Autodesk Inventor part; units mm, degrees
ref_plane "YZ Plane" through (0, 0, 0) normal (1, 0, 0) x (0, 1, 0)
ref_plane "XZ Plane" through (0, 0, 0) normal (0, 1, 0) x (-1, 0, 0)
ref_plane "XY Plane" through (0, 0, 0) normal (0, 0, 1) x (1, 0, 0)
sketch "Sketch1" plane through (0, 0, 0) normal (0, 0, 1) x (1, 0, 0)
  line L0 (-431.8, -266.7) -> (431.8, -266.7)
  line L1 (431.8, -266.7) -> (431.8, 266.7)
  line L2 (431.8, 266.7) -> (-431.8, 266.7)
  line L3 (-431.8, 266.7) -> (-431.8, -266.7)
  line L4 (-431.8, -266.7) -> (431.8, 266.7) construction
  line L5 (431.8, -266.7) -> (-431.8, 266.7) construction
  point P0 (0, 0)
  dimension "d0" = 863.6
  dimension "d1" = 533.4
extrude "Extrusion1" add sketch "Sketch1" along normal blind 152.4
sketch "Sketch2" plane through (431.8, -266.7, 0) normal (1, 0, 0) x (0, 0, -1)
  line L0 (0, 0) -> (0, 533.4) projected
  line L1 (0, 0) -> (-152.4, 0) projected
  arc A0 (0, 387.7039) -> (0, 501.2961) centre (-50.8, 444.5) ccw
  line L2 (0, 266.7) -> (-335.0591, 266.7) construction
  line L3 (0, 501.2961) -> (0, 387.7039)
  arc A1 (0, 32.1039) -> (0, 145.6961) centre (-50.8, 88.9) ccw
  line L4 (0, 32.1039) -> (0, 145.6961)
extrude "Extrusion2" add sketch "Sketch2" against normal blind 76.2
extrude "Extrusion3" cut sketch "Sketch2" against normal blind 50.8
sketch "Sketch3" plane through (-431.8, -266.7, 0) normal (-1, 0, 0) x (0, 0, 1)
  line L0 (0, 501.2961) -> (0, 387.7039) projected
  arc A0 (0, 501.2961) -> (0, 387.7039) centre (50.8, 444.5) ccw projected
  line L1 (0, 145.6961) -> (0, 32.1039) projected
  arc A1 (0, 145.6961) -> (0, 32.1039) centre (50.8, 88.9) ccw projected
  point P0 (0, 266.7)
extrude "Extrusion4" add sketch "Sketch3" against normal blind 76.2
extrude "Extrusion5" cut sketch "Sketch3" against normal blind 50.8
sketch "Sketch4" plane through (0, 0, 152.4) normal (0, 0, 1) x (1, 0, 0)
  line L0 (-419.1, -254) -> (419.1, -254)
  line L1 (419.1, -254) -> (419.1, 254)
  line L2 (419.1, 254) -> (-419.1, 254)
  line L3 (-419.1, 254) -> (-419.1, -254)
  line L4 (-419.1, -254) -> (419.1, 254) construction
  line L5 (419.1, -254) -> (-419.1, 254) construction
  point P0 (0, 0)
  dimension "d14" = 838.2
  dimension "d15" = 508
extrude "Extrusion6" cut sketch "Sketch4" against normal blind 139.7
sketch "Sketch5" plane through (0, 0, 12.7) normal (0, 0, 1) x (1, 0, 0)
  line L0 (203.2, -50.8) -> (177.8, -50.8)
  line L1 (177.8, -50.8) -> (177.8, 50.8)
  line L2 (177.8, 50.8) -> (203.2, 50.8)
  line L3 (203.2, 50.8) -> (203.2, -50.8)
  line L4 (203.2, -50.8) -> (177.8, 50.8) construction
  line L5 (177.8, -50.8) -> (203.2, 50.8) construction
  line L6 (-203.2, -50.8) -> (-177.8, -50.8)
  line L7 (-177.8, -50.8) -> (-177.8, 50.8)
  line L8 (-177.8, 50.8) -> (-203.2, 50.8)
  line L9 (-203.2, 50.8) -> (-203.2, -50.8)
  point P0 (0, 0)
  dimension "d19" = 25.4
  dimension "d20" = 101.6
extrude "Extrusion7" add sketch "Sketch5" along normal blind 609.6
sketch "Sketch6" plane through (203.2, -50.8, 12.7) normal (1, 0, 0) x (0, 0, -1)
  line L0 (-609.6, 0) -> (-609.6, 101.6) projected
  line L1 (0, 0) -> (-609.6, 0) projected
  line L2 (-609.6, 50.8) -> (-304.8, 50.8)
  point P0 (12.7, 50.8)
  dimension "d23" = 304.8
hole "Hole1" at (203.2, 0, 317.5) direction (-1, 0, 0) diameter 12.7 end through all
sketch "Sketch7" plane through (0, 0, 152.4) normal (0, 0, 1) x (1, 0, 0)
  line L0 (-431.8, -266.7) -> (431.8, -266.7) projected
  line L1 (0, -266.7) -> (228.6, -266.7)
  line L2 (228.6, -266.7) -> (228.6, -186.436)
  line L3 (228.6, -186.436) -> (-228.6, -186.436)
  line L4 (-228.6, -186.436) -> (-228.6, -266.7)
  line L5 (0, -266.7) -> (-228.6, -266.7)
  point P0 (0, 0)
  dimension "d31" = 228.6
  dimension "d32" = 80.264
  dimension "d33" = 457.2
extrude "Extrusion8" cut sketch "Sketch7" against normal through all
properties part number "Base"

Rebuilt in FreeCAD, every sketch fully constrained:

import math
import FreeCAD as App
import Part
import Sketcher
Q = App.Units.Quantity

doc = App.newDocument("Part")
params = doc.addObject("Spreadsheet::Sheet", "Params")
for row, (alias, value) in enumerate([
    ("sketch1_width", "34 in"),
    ("sketch1_height", "21 in"),
    ("pad1_length", "6 in"),
    ("sketch2_radius", "3 in"),
    ("pad2_length", "3 in"),
    ("sketch3_radius", "3 in"),
    ("pocket1_length", "2 in"),
    ("sketch4_radius", "3 in"),
    ("pad3_length", "3 in"),
    ("sketch5_radius", "3 in"),
    ("pocket2_length", "2 in"),
    ("sketch6_width", "33 in"),
    ("sketch6_height", "20 in"),
    ("pocket3_length", "5.5 in"),
    ("sketch7_width", "1 in"),
    ("sketch7_height", "4 in"),
    ("pad4_length", "24 in"),
    ("sketch8_diameter", "0.5 in"),
    ("hole_diameter", "0.5 in"),
    ("sketch9_width", "18 in"),
    ("sketch9_height", "3.16 in"),
], start=1):
    params.set(f"A{row}", alias)
    params.set(f"B{row}", "=" + value)
    params.setAlias(f"B{row}", alias)

body = doc.addObject("PartDesign::Body", "Body")

# Sketch on XY plane
sketch1 = doc.addObject("Sketcher::SketchObject", "Sketch")
body.addObject(sketch1)
sketch1.AttachmentSupport = (doc.XY_Plane, [""])
sketch1.MapMode = "FlatFace"
sketch1.addGeometry([
    Part.LineSegment(App.Vector(-432, 267, 0), App.Vector(-432, -267, 0)),
    Part.LineSegment(App.Vector(-432, -267, 0), App.Vector(432, -267, 0)),
    Part.LineSegment(App.Vector(432, -267, 0), App.Vector(432, 267, 0)),
    Part.LineSegment(App.Vector(432, 267, 0), App.Vector(-432, 267, 0)),
], False)
sketch1.addConstraint([
    Sketcher.Constraint("Coincident", 0, 2, 1, 1),
    Sketcher.Constraint("Coincident", 1, 2, 2, 1),
    Sketcher.Constraint("Coincident", 2, 2, 3, 1),
    Sketcher.Constraint("Coincident", 3, 2, 0, 1),
    Sketcher.Constraint("Vertical", 0),
    Sketcher.Constraint("Horizontal", 1),
    Sketcher.Constraint("Vertical", 2),
    Sketcher.Constraint("Horizontal", 3),
    Sketcher.Constraint("Symmetric", 0, 2, 2, 2, -1, 1),
    Sketcher.Constraint("DistanceX", 1, 1, 1, 2, Q("34 in")),
    Sketcher.Constraint("DistanceY", 0, 2, 0, 1, Q("21 in")),
])
sketch1.setExpression("Constraints[9]", "Params.sketch1_width")
sketch1.setExpression("Constraints[10]", "Params.sketch1_height")
pad1 = doc.addObject("PartDesign::Pad", "Pad")
body.addObject(pad1)
pad1.Profile = sketch1
pad1.setExpression("Length", "Params.pad1_length")

# Sketch on YZ plane
sketch2 = doc.addObject("Sketcher::SketchObject", "Sketch001")
body.addObject(sketch2)
sketch2.AttachmentSupport = (doc.YZ_Plane, [""])
sketch2.MapMode = "FlatFace"
sketch2.AttachmentOffset = App.Placement(App.Vector(0, 0, 17 * 25.4), App.Rotation())
sketch2.addGeometry([
    Part.LineSegment(App.Vector(235, 0, 0), App.Vector(121, 0, 0)),
    Part.ArcOfCircle(Part.Circle(App.Vector(178, 51, 0), App.Vector(0, 0, 1), 76), math.radians(-138), math.radians(-42)),
    Part.LineSegment(App.Vector(-121, 0, 0), App.Vector(-235, 0, 0)),
    Part.ArcOfCircle(Part.Circle(App.Vector(-178, 51, 0), App.Vector(0, 0, 1), 76), math.radians(-138), math.radians(-42)),
], False)
sketch2.addConstraint([
    Sketcher.Constraint("Coincident", 0, 1, 1, 2),
    Sketcher.Constraint("Coincident", 1, 1, 0, 2),
    Sketcher.Constraint("Coincident", 2, 1, 3, 2),
    Sketcher.Constraint("Coincident", 3, 1, 2, 2),
    Sketcher.Constraint("Horizontal", 0),
    Sketcher.Constraint("Horizontal", 2),
    Sketcher.Constraint("Equal", 1, 3),
    Sketcher.Constraint("Symmetric", 1, 1, 2, 1, -1, 1),
    Sketcher.Constraint("Symmetric", 1, 3, 3, 3, -2),
    Sketcher.Constraint("Radius", 1, Q("3 in")),
    Sketcher.Constraint("DistanceX", -1, 1, 1, 3, Q("7 in")),
    Sketcher.Constraint("DistanceY", -1, 1, 1, 3, Q("2 in")),
])
sketch2.setExpression("Constraints[9]", "Params.sketch2_radius")
pad2 = doc.addObject("PartDesign::Pad", "Pad001")
body.addObject(pad2)
pad2.Profile = sketch2
pad2.setExpression("Length", "Params.pad2_length")
pad2.Reversed = True

# Sketch on YZ plane
sketch3 = doc.addObject("Sketcher::SketchObject", "Sketch002")
body.addObject(sketch3)
sketch3.AttachmentSupport = (doc.YZ_Plane, [""])
sketch3.MapMode = "FlatFace"
sketch3.AttachmentOffset = App.Placement(App.Vector(0, 0, 17 * 25.4), App.Rotation())
sketch3.addGeometry([
    Part.LineSegment(App.Vector(235, 0, 0), App.Vector(121, 0, 0)),
    Part.ArcOfCircle(Part.Circle(App.Vector(178, 51, 0), App.Vector(0, 0, 1), 76), math.radians(-138), math.radians(-42)),
    Part.LineSegment(App.Vector(-121, 0, 0), App.Vector(-235, 0, 0)),
    Part.ArcOfCircle(Part.Circle(App.Vector(-178, 51, 0), App.Vector(0, 0, 1), 76), math.radians(-138), math.radians(-42)),
], False)
sketch3.addConstraint([
    Sketcher.Constraint("Coincident", 0, 1, 1, 2),
    Sketcher.Constraint("Coincident", 1, 1, 0, 2),
    Sketcher.Constraint("Coincident", 2, 1, 3, 2),
    Sketcher.Constraint("Coincident", 3, 1, 2, 2),
    Sketcher.Constraint("Horizontal", 0),
    Sketcher.Constraint("Horizontal", 2),
    Sketcher.Constraint("Equal", 1, 3),
    Sketcher.Constraint("Symmetric", 1, 1, 2, 1, -1, 1),
    Sketcher.Constraint("Symmetric", 1, 3, 3, 3, -2),
    Sketcher.Constraint("Radius", 1, Q("3 in")),
    Sketcher.Constraint("DistanceX", -1, 1, 1, 3, Q("7 in")),
    Sketcher.Constraint("DistanceY", -1, 1, 1, 3, Q("2 in")),
])
sketch3.setExpression("Constraints[9]", "Params.sketch3_radius")
pocket1 = doc.addObject("PartDesign::Pocket", "Pocket")
body.addObject(pocket1)
pocket1.Profile = sketch3
pocket1.setExpression("Length", "Params.pocket1_length")

# Sketch on YZ plane
sketch4 = doc.addObject("Sketcher::SketchObject", "Sketch003")
body.addObject(sketch4)
sketch4.AttachmentSupport = (doc.YZ_Plane, [""])
sketch4.MapMode = "FlatFace"
sketch4.AttachmentOffset = App.Placement(App.Vector(0, 0, -17 * 25.4), App.Rotation())
sketch4.addGeometry([
    Part.LineSegment(App.Vector(121, 0, 0), App.Vector(235, 0, 0)),
    Part.ArcOfCircle(Part.Circle(App.Vector(178, 51, 0), App.Vector(0, 0, 1), 76), math.radians(-138), math.radians(-42)),
    Part.LineSegment(App.Vector(-235, 0, 0), App.Vector(-121, 0, 0)),
    Part.ArcOfCircle(Part.Circle(App.Vector(-178, 51, 0), App.Vector(0, 0, 1), 76), math.radians(-138), math.radians(-42)),
], False)
sketch4.addConstraint([
    Sketcher.Constraint("Coincident", 0, 1, 1, 1),
    Sketcher.Constraint("Coincident", 1, 2, 0, 2),
    Sketcher.Constraint("Coincident", 2, 1, 3, 1),
    Sketcher.Constraint("Coincident", 3, 2, 2, 2),
    Sketcher.Constraint("Horizontal", 0),
    Sketcher.Constraint("Horizontal", 2),
    Sketcher.Constraint("Equal", 1, 3),
    Sketcher.Constraint("Symmetric", 1, 2, 2, 1, -1, 1),
    Sketcher.Constraint("Symmetric", 1, 3, 3, 3, -2),
    Sketcher.Constraint("Radius", 1, Q("3 in")),
    Sketcher.Constraint("DistanceX", -1, 1, 1, 3, Q("7 in")),
    Sketcher.Constraint("DistanceY", -1, 1, 1, 3, Q("2 in")),
])
sketch4.setExpression("Constraints[9]", "Params.sketch4_radius")
pad3 = doc.addObject("PartDesign::Pad", "Pad002")
body.addObject(pad3)
pad3.Profile = sketch4
pad3.setExpression("Length", "Params.pad3_length")

# Sketch on YZ plane
sketch5 = doc.addObject("Sketcher::SketchObject", "Sketch004")
body.addObject(sketch5)
sketch5.AttachmentSupport = (doc.YZ_Plane, [""])
sketch5.MapMode = "FlatFace"
sketch5.AttachmentOffset = App.Placement(App.Vector(0, 0, -17 * 25.4), App.Rotation())
sketch5.addGeometry([
    Part.LineSegment(App.Vector(121, 0, 0), App.Vector(235, 0, 0)),
    Part.ArcOfCircle(Part.Circle(App.Vector(178, 51, 0), App.Vector(0, 0, 1), 76), math.radians(-138), math.radians(-42)),
    Part.LineSegment(App.Vector(-235, 0, 0), App.Vector(-121, 0, 0)),
    Part.ArcOfCircle(Part.Circle(App.Vector(-178, 51, 0), App.Vector(0, 0, 1), 76), math.radians(-138), math.radians(-42)),
], False)
sketch5.addConstraint([
    Sketcher.Constraint("Coincident", 0, 1, 1, 1),
    Sketcher.Constraint("Coincident", 1, 2, 0, 2),
    Sketcher.Constraint("Coincident", 2, 1, 3, 1),
    Sketcher.Constraint("Coincident", 3, 2, 2, 2),
    Sketcher.Constraint("Horizontal", 0),
    Sketcher.Constraint("Horizontal", 2),
    Sketcher.Constraint("Equal", 1, 3),
    Sketcher.Constraint("Symmetric", 1, 2, 2, 1, -1, 1),
    Sketcher.Constraint("Symmetric", 1, 3, 3, 3, -2),
    Sketcher.Constraint("Radius", 1, Q("3 in")),
    Sketcher.Constraint("DistanceX", -1, 1, 1, 3, Q("7 in")),
    Sketcher.Constraint("DistanceY", -1, 1, 1, 3, Q("2 in")),
])
sketch5.setExpression("Constraints[9]", "Params.sketch5_radius")
pocket2 = doc.addObject("PartDesign::Pocket", "Pocket001")
body.addObject(pocket2)
pocket2.Profile = sketch5
pocket2.setExpression("Length", "Params.pocket2_length")
pocket2.Reversed = True

# Sketch on XY plane
sketch6 = doc.addObject("Sketcher::SketchObject", "Sketch005")
body.addObject(sketch6)
sketch6.AttachmentSupport = (doc.XY_Plane, [""])
sketch6.MapMode = "FlatFace"
sketch6.AttachmentOffset = App.Placement(App.Vector(0, 0, 6 * 25.4), App.Rotation())
sketch6.addGeometry([
    Part.LineSegment(App.Vector(-419, 254, 0), App.Vector(-419, -254, 0)),
    Part.LineSegment(App.Vector(-419, -254, 0), App.Vector(419, -254, 0)),
    Part.LineSegment(App.Vector(419, -254, 0), App.Vector(419, 254, 0)),
    Part.LineSegment(App.Vector(419, 254, 0), App.Vector(-419, 254, 0)),
], False)
sketch6.addConstraint([
    Sketcher.Constraint("Coincident", 0, 2, 1, 1),
    Sketcher.Constraint("Coincident", 1, 2, 2, 1),
    Sketcher.Constraint("Coincident", 2, 2, 3, 1),
    Sketcher.Constraint("Coincident", 3, 2, 0, 1),
    Sketcher.Constraint("Vertical", 0),
    Sketcher.Constraint("Horizontal", 1),
    Sketcher.Constraint("Vertical", 2),
    Sketcher.Constraint("Horizontal", 3),
    Sketcher.Constraint("Symmetric", 0, 2, 2, 2, -1, 1),
    Sketcher.Constraint("DistanceX", 1, 1, 1, 2, Q("33 in")),
    Sketcher.Constraint("DistanceY", 0, 2, 0, 1, Q("20 in")),
])
sketch6.setExpression("Constraints[9]", "Params.sketch6_width")
sketch6.setExpression("Constraints[10]", "Params.sketch6_height")
pocket3 = doc.addObject("PartDesign::Pocket", "Pocket002")
body.addObject(pocket3)
pocket3.Profile = sketch6
pocket3.setExpression("Length", "Params.pocket3_length")

# Sketch on XY plane
sketch7 = doc.addObject("Sketcher::SketchObject", "Sketch006")
body.addObject(sketch7)
sketch7.AttachmentSupport = (doc.XY_Plane, [""])
sketch7.MapMode = "FlatFace"
sketch7.AttachmentOffset = App.Placement(App.Vector(0, 0, 0.5 * 25.4), App.Rotation())
sketch7.addGeometry([
    Part.LineSegment(App.Vector(178, -51, 0), App.Vector(203, -51, 0)),  # 0
    Part.LineSegment(App.Vector(203, -51, 0), App.Vector(203, 51, 0)),  # 1
    Part.LineSegment(App.Vector(203, 51, 0), App.Vector(178, 51, 0)),  # 2
    Part.LineSegment(App.Vector(178, 51, 0), App.Vector(178, -51, 0)),  # 3
    Part.LineSegment(App.Vector(-203, 51, 0), App.Vector(-203, -51, 0)),  # 4
    Part.LineSegment(App.Vector(-203, -51, 0), App.Vector(-178, -51, 0)),  # 5
    Part.LineSegment(App.Vector(-178, -51, 0), App.Vector(-178, 51, 0)),  # 6
    Part.LineSegment(App.Vector(-178, 51, 0), App.Vector(-203, 51, 0)),  # 7
], False)
sketch7.addConstraint([
    Sketcher.Constraint("Coincident", 0, 2, 1, 1),
    Sketcher.Constraint("Coincident", 1, 2, 2, 1),
    Sketcher.Constraint("Coincident", 2, 2, 3, 1),
    Sketcher.Constraint("Coincident", 3, 2, 0, 1),
    Sketcher.Constraint("Coincident", 4, 2, 5, 1),
    Sketcher.Constraint("Coincident", 5, 2, 6, 1),
    Sketcher.Constraint("Coincident", 6, 2, 7, 1),
    Sketcher.Constraint("Coincident", 7, 2, 4, 1),
    Sketcher.Constraint("Horizontal", 0),
    Sketcher.Constraint("Vertical", 1),
    Sketcher.Constraint("Horizontal", 2),
    Sketcher.Constraint("Vertical", 3),
    Sketcher.Constraint("Vertical", 4),
    Sketcher.Constraint("Horizontal", 5),
    Sketcher.Constraint("Vertical", 6),
    Sketcher.Constraint("Horizontal", 7),
    Sketcher.Constraint("Symmetric", 1, 2, 4, 2, -1, 1),
    Sketcher.Constraint("Symmetric", 3, 2, 6, 2, -1, 1),
    Sketcher.Constraint("Horizontal", 3, 2, 4, 2),
    Sketcher.Constraint("DistanceX", 0, 1, 0, 2, Q("1 in")),
    Sketcher.Constraint("DistanceY", 1, 1, 1, 2, Q("4 in")),
    Sketcher.Constraint("DistanceX", -1, 1, 0, 2, Q("8 in")),
])
sketch7.setExpression("Constraints[19]", "Params.sketch7_width")
sketch7.setExpression("Constraints[20]", "Params.sketch7_height")
pad4 = doc.addObject("PartDesign::Pad", "Pad003")
body.addObject(pad4)
pad4.Profile = sketch7
pad4.setExpression("Length", "Params.pad4_length")

# Sketch on YZ plane
sketch8 = doc.addObject("Sketcher::SketchObject", "Sketch007")
body.addObject(sketch8)
sketch8.AttachmentSupport = (doc.YZ_Plane, [""])
sketch8.MapMode = "FlatFace"
sketch8.AttachmentOffset = App.Placement(App.Vector(0, 0, 8 * 25.4), App.Rotation())
sketch8.addGeometry(Part.Circle(App.Vector(0, 318, 0), App.Vector(0, 0, 1), 6), False)
sketch8.addConstraint([
    Sketcher.Constraint("PointOnObject", 0, 3, -2),
    Sketcher.Constraint("Diameter", 0, Q("0.5 in")),
    Sketcher.Constraint("DistanceY", -1, 1, 0, 3, Q("12.5 in")),
])
sketch8.setExpression("Constraints[1]", "Params.sketch8_diameter")
doc.recompute()
hole = doc.addObject("PartDesign::Hole", "Hole")
body.addObject(hole)
hole.Profile = sketch8
hole.ThreadType = "None"
hole.setExpression("Diameter", "Params.hole_diameter")
hole.DepthType = "ThroughAll"

# Sketch on XY plane
sketch9 = doc.addObject("Sketcher::SketchObject", "Sketch008")
body.addObject(sketch9)
sketch9.AttachmentSupport = (doc.XY_Plane, [""])
sketch9.MapMode = "FlatFace"
sketch9.AttachmentOffset = App.Placement(App.Vector(0, 0, 6 * 25.4), App.Rotation())
sketch9.addGeometry([
    Part.LineSegment(App.Vector(-229, -186, 0), App.Vector(-229, -267, 0)),
    Part.LineSegment(App.Vector(-229, -267, 0), App.Vector(229, -267, 0)),
    Part.LineSegment(App.Vector(229, -267, 0), App.Vector(229, -186, 0)),
    Part.LineSegment(App.Vector(229, -186, 0), App.Vector(-229, -186, 0)),
], False)
sketch9.addConstraint([
    Sketcher.Constraint("Coincident", 0, 2, 1, 1),
    Sketcher.Constraint("Coincident", 1, 2, 2, 1),
    Sketcher.Constraint("Coincident", 2, 2, 3, 1),
    Sketcher.Constraint("Coincident", 3, 2, 0, 1),
    Sketcher.Constraint("Vertical", 0),
    Sketcher.Constraint("Horizontal", 1),
    Sketcher.Constraint("Vertical", 2),
    Sketcher.Constraint("Horizontal", 3),
    Sketcher.Constraint("DistanceX", 1, 1, 1, 2, Q("18 in")),
    Sketcher.Constraint("DistanceX", 0, 2, -1, 1, Q("9 in")),
    Sketcher.Constraint("DistanceY", 0, 2, 0, 1, Q("3.16 in")),
    Sketcher.Constraint("DistanceY", 0, 2, -1, 1, Q("10.5 in")),
])
sketch9.setExpression("Constraints[8]", "Params.sketch9_width")
sketch9.setExpression("Constraints[10]", "Params.sketch9_height")
pocket4 = doc.addObject("PartDesign::Pocket", "Pocket003")
body.addObject(pocket4)
pocket4.Profile = sketch9
pocket4.Type = "ThroughAll"

doc.recompute()
